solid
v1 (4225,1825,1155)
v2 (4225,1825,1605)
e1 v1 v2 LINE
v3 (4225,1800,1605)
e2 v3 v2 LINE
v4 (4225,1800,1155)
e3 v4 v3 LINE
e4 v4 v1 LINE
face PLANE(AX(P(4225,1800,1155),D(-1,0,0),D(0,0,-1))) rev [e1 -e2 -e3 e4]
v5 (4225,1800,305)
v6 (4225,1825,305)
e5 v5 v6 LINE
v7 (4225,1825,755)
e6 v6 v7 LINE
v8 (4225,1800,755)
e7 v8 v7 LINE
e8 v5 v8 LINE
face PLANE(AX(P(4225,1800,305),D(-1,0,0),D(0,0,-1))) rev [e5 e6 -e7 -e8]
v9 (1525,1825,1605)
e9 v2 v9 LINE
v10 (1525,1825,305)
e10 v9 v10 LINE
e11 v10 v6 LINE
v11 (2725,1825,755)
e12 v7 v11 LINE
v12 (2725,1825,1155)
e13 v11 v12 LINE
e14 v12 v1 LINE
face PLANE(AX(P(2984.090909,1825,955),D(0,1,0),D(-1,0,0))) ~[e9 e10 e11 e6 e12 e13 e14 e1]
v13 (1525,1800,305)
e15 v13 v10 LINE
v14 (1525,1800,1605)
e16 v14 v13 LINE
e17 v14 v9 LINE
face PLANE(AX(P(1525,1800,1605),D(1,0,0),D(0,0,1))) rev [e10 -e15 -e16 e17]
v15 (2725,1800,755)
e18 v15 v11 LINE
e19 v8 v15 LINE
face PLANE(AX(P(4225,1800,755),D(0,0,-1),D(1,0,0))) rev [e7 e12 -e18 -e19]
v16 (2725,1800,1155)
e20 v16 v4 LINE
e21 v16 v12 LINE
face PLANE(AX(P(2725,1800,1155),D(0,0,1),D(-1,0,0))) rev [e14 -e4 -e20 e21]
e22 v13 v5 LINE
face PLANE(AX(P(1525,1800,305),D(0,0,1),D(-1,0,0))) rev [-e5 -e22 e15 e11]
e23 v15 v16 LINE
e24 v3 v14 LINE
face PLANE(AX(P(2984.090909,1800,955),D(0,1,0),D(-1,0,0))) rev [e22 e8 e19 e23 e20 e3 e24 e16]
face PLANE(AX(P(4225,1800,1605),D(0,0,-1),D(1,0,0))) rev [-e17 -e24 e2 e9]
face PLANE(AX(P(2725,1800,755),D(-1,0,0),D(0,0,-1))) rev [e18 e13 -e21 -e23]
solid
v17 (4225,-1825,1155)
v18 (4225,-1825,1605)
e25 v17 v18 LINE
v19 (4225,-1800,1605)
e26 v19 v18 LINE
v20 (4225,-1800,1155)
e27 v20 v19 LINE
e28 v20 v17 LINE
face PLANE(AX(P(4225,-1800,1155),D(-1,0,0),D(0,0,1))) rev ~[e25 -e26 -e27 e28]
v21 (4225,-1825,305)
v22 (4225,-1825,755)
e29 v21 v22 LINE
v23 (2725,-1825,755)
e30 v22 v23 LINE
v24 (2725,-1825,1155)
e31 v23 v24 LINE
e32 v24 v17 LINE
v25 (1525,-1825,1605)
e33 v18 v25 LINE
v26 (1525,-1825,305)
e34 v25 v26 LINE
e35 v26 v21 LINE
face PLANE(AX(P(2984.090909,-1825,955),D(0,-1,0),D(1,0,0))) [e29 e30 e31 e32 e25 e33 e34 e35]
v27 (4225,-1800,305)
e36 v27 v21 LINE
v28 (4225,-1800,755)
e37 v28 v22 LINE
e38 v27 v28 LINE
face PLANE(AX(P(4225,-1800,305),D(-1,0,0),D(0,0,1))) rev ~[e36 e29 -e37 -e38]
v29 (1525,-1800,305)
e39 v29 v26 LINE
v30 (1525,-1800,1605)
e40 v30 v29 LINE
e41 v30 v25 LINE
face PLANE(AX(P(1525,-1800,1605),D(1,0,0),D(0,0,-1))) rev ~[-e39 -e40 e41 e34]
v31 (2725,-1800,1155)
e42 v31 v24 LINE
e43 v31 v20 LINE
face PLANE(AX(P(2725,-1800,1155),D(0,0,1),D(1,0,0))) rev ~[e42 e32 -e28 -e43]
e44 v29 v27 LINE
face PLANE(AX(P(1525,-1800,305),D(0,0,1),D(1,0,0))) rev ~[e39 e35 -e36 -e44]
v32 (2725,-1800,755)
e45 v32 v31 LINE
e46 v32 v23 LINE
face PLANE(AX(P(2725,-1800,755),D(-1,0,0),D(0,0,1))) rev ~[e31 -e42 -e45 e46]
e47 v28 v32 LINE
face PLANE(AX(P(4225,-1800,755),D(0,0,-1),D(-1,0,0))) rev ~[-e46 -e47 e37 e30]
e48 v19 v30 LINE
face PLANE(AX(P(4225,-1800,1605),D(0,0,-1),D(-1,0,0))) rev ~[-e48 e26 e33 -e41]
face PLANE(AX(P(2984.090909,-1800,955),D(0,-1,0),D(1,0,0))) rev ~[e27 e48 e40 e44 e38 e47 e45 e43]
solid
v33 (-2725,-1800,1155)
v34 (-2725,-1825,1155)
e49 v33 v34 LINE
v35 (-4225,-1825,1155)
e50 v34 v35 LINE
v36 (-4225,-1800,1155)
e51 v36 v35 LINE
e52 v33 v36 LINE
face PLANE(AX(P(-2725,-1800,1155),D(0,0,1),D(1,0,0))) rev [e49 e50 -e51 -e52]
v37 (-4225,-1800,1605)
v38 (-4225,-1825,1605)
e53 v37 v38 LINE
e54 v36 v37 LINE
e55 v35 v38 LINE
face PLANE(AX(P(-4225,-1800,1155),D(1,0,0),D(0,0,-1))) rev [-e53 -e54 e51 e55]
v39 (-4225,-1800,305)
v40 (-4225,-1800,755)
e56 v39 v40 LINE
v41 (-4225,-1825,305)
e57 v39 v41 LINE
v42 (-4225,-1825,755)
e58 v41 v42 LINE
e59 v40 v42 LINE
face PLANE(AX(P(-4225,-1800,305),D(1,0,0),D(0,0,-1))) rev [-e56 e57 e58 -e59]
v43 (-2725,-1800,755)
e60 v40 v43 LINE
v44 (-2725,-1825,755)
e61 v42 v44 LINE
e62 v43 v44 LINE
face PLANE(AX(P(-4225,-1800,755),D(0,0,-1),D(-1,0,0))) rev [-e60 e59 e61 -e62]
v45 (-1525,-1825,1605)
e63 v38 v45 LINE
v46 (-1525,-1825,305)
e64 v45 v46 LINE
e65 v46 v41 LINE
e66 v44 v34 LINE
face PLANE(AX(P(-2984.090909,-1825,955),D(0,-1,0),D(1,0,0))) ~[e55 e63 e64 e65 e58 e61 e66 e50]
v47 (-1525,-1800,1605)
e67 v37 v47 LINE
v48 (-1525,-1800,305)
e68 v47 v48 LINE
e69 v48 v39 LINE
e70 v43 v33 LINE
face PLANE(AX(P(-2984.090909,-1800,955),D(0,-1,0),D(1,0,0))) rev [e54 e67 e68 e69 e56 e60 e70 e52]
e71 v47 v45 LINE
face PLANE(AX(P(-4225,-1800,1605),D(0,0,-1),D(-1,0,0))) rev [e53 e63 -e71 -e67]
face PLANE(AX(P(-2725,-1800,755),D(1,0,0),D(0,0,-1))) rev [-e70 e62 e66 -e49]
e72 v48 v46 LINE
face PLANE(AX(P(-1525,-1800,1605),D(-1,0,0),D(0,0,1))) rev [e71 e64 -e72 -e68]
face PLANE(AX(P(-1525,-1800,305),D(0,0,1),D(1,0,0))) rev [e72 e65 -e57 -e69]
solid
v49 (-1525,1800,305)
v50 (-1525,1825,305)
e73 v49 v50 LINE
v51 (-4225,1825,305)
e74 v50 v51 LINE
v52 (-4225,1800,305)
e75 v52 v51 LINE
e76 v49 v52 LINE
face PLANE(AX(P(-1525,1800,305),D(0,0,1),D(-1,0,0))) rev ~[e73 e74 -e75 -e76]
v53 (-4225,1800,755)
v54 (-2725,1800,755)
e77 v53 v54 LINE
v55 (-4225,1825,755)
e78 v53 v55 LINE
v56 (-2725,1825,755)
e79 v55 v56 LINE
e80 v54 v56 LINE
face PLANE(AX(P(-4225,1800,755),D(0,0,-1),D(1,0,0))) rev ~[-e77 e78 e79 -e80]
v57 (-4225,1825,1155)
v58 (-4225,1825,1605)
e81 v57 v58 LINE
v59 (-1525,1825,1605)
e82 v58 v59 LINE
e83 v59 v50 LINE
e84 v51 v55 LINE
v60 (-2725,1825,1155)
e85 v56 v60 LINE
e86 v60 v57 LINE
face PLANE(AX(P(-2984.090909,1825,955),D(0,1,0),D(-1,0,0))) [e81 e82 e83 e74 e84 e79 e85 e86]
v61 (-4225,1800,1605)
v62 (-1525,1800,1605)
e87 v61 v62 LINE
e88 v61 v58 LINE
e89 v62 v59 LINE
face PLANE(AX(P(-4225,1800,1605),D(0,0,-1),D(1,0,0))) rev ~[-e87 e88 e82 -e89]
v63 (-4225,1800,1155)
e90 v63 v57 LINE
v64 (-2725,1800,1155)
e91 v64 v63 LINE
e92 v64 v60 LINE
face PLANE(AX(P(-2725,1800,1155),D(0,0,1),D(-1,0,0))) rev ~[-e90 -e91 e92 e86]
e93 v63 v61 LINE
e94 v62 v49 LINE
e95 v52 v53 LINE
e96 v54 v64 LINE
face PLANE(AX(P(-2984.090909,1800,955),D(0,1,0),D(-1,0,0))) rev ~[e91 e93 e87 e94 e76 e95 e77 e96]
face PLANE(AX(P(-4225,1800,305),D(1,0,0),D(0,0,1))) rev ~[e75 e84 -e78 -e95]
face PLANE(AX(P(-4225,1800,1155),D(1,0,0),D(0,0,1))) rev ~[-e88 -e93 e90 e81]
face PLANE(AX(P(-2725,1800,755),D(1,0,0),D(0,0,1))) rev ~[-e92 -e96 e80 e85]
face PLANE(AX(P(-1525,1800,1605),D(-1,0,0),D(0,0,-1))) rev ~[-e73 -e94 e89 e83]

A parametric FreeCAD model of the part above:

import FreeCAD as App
import Part
import Sketcher

V = App.Vector
Q = App.Units.Quantity

doc = App.newDocument("Part")
body = doc.addObject("PartDesign::Body", "Body")

# Sketch on XZ plane
sketch1 = body.newObject("Sketcher::SketchObject", "Sketch")
sketch1.AttachmentSupport = (doc.getObject("XZ_Plane"), [""])
sketch1.MapMode = "FlatFace"
sketch1.AttachmentOffset = App.Placement(V(0, 0, 1800), App.Rotation())
sketch1.addGeometry([
    Part.LineSegment(V(4225, 1605, 0), V(1525, 1605, 0)),  # 0
    Part.LineSegment(V(1525, 1605, 0), V(1525, 305, 0)),  # 1
    Part.LineSegment(V(1525, 305, 0), V(4225, 305, 0)),  # 2
    Part.LineSegment(V(4225, 305, 0), V(4225, 755, 0)),  # 3
    Part.LineSegment(V(4225, 755, 0), V(2725, 755, 0)),  # 4
    Part.LineSegment(V(2725, 755, 0), V(2725, 1155, 0)),  # 5
    Part.LineSegment(V(2725, 1155, 0), V(4225, 1155, 0)),  # 6
    Part.LineSegment(V(4225, 1155, 0), V(4225, 1605, 0)),  # 7
], False)
sketch1.addConstraint([
    Sketcher.Constraint("Coincident", 0, 2, 1, 1),
    Sketcher.Constraint("Coincident", 1, 2, 2, 1),
    Sketcher.Constraint("Coincident", 2, 2, 3, 1),
    Sketcher.Constraint("Coincident", 3, 2, 4, 1),
    Sketcher.Constraint("Coincident", 4, 2, 5, 1),
    Sketcher.Constraint("Coincident", 5, 2, 6, 1),
    Sketcher.Constraint("Coincident", 6, 2, 7, 1),
    Sketcher.Constraint("Coincident", 7, 2, 0, 1),
    Sketcher.Constraint("Horizontal", 0),
    Sketcher.Constraint("Vertical", 1),
    Sketcher.Constraint("Horizontal", 2),
    Sketcher.Constraint("Vertical", 3),
    Sketcher.Constraint("Horizontal", 4),
    Sketcher.Constraint("Vertical", 5),
    Sketcher.Constraint("Horizontal", 6),
    Sketcher.Constraint("Vertical", 7),
    Sketcher.Constraint("Vertical", 3, 2, 6, 2),
    Sketcher.Constraint("Equal", 3, 7),
    Sketcher.Constraint("DistanceX", 0, 2, 0, 1, Q("2700 mm")),
    Sketcher.Constraint("DistanceX", 4, 2, 4, 1, Q("1500 mm")),
    Sketcher.Constraint("DistanceY", 1, 2, 1, 1, Q("1300 mm")),
    Sketcher.Constraint("DistanceY", 3, 1, 3, 2, Q("450 mm")),
    Sketcher.Constraint("DistanceX", -1, 1, 0, 2, Q("1525 mm")),
    Sketcher.Constraint("DistanceY", -1, 1, 0, 2, Q("1605 mm")),
])
pad1 = body.newObject("PartDesign::Pad", "Pad")
pad1.Profile = sketch1
pad1.Length = 25
body2 = doc.addObject("PartDesign::Body", "Body001")
doc.recompute()

mirroring = doc.addObject("Part::Mirroring", "Mirroring")
mirroring.Source = body
mirroring.Base = V(0, 0, 0)
mirroring.Normal = V(1, 0, 0)
body2.BaseFeature = mirroring
doc.recompute()
body3 = doc.addObject("PartDesign::Body", "Body002")
doc.recompute()

mirroring2 = doc.addObject("Part::Mirroring", "Mirroring001")
mirroring2.Source = body
mirroring2.Base = V(0, 0, 0)
mirroring2.Normal = V(0, -1, 0)
body3.BaseFeature = mirroring2
doc.recompute()
body4 = doc.addObject("PartDesign::Body", "Body003")
doc.recompute()

mirroring3 = doc.addObject("Part::Mirroring", "Mirroring002")
mirroring3.Source = body2
mirroring3.Base = V(0, 0, 0)
mirroring3.Normal = V(0, -1, 0)
body4.BaseFeature = mirroring3
doc.recompute()
mirroring.Visibility = False
mirroring2.Visibility = False
mirroring3.Visibility = False

doc.recompute()
